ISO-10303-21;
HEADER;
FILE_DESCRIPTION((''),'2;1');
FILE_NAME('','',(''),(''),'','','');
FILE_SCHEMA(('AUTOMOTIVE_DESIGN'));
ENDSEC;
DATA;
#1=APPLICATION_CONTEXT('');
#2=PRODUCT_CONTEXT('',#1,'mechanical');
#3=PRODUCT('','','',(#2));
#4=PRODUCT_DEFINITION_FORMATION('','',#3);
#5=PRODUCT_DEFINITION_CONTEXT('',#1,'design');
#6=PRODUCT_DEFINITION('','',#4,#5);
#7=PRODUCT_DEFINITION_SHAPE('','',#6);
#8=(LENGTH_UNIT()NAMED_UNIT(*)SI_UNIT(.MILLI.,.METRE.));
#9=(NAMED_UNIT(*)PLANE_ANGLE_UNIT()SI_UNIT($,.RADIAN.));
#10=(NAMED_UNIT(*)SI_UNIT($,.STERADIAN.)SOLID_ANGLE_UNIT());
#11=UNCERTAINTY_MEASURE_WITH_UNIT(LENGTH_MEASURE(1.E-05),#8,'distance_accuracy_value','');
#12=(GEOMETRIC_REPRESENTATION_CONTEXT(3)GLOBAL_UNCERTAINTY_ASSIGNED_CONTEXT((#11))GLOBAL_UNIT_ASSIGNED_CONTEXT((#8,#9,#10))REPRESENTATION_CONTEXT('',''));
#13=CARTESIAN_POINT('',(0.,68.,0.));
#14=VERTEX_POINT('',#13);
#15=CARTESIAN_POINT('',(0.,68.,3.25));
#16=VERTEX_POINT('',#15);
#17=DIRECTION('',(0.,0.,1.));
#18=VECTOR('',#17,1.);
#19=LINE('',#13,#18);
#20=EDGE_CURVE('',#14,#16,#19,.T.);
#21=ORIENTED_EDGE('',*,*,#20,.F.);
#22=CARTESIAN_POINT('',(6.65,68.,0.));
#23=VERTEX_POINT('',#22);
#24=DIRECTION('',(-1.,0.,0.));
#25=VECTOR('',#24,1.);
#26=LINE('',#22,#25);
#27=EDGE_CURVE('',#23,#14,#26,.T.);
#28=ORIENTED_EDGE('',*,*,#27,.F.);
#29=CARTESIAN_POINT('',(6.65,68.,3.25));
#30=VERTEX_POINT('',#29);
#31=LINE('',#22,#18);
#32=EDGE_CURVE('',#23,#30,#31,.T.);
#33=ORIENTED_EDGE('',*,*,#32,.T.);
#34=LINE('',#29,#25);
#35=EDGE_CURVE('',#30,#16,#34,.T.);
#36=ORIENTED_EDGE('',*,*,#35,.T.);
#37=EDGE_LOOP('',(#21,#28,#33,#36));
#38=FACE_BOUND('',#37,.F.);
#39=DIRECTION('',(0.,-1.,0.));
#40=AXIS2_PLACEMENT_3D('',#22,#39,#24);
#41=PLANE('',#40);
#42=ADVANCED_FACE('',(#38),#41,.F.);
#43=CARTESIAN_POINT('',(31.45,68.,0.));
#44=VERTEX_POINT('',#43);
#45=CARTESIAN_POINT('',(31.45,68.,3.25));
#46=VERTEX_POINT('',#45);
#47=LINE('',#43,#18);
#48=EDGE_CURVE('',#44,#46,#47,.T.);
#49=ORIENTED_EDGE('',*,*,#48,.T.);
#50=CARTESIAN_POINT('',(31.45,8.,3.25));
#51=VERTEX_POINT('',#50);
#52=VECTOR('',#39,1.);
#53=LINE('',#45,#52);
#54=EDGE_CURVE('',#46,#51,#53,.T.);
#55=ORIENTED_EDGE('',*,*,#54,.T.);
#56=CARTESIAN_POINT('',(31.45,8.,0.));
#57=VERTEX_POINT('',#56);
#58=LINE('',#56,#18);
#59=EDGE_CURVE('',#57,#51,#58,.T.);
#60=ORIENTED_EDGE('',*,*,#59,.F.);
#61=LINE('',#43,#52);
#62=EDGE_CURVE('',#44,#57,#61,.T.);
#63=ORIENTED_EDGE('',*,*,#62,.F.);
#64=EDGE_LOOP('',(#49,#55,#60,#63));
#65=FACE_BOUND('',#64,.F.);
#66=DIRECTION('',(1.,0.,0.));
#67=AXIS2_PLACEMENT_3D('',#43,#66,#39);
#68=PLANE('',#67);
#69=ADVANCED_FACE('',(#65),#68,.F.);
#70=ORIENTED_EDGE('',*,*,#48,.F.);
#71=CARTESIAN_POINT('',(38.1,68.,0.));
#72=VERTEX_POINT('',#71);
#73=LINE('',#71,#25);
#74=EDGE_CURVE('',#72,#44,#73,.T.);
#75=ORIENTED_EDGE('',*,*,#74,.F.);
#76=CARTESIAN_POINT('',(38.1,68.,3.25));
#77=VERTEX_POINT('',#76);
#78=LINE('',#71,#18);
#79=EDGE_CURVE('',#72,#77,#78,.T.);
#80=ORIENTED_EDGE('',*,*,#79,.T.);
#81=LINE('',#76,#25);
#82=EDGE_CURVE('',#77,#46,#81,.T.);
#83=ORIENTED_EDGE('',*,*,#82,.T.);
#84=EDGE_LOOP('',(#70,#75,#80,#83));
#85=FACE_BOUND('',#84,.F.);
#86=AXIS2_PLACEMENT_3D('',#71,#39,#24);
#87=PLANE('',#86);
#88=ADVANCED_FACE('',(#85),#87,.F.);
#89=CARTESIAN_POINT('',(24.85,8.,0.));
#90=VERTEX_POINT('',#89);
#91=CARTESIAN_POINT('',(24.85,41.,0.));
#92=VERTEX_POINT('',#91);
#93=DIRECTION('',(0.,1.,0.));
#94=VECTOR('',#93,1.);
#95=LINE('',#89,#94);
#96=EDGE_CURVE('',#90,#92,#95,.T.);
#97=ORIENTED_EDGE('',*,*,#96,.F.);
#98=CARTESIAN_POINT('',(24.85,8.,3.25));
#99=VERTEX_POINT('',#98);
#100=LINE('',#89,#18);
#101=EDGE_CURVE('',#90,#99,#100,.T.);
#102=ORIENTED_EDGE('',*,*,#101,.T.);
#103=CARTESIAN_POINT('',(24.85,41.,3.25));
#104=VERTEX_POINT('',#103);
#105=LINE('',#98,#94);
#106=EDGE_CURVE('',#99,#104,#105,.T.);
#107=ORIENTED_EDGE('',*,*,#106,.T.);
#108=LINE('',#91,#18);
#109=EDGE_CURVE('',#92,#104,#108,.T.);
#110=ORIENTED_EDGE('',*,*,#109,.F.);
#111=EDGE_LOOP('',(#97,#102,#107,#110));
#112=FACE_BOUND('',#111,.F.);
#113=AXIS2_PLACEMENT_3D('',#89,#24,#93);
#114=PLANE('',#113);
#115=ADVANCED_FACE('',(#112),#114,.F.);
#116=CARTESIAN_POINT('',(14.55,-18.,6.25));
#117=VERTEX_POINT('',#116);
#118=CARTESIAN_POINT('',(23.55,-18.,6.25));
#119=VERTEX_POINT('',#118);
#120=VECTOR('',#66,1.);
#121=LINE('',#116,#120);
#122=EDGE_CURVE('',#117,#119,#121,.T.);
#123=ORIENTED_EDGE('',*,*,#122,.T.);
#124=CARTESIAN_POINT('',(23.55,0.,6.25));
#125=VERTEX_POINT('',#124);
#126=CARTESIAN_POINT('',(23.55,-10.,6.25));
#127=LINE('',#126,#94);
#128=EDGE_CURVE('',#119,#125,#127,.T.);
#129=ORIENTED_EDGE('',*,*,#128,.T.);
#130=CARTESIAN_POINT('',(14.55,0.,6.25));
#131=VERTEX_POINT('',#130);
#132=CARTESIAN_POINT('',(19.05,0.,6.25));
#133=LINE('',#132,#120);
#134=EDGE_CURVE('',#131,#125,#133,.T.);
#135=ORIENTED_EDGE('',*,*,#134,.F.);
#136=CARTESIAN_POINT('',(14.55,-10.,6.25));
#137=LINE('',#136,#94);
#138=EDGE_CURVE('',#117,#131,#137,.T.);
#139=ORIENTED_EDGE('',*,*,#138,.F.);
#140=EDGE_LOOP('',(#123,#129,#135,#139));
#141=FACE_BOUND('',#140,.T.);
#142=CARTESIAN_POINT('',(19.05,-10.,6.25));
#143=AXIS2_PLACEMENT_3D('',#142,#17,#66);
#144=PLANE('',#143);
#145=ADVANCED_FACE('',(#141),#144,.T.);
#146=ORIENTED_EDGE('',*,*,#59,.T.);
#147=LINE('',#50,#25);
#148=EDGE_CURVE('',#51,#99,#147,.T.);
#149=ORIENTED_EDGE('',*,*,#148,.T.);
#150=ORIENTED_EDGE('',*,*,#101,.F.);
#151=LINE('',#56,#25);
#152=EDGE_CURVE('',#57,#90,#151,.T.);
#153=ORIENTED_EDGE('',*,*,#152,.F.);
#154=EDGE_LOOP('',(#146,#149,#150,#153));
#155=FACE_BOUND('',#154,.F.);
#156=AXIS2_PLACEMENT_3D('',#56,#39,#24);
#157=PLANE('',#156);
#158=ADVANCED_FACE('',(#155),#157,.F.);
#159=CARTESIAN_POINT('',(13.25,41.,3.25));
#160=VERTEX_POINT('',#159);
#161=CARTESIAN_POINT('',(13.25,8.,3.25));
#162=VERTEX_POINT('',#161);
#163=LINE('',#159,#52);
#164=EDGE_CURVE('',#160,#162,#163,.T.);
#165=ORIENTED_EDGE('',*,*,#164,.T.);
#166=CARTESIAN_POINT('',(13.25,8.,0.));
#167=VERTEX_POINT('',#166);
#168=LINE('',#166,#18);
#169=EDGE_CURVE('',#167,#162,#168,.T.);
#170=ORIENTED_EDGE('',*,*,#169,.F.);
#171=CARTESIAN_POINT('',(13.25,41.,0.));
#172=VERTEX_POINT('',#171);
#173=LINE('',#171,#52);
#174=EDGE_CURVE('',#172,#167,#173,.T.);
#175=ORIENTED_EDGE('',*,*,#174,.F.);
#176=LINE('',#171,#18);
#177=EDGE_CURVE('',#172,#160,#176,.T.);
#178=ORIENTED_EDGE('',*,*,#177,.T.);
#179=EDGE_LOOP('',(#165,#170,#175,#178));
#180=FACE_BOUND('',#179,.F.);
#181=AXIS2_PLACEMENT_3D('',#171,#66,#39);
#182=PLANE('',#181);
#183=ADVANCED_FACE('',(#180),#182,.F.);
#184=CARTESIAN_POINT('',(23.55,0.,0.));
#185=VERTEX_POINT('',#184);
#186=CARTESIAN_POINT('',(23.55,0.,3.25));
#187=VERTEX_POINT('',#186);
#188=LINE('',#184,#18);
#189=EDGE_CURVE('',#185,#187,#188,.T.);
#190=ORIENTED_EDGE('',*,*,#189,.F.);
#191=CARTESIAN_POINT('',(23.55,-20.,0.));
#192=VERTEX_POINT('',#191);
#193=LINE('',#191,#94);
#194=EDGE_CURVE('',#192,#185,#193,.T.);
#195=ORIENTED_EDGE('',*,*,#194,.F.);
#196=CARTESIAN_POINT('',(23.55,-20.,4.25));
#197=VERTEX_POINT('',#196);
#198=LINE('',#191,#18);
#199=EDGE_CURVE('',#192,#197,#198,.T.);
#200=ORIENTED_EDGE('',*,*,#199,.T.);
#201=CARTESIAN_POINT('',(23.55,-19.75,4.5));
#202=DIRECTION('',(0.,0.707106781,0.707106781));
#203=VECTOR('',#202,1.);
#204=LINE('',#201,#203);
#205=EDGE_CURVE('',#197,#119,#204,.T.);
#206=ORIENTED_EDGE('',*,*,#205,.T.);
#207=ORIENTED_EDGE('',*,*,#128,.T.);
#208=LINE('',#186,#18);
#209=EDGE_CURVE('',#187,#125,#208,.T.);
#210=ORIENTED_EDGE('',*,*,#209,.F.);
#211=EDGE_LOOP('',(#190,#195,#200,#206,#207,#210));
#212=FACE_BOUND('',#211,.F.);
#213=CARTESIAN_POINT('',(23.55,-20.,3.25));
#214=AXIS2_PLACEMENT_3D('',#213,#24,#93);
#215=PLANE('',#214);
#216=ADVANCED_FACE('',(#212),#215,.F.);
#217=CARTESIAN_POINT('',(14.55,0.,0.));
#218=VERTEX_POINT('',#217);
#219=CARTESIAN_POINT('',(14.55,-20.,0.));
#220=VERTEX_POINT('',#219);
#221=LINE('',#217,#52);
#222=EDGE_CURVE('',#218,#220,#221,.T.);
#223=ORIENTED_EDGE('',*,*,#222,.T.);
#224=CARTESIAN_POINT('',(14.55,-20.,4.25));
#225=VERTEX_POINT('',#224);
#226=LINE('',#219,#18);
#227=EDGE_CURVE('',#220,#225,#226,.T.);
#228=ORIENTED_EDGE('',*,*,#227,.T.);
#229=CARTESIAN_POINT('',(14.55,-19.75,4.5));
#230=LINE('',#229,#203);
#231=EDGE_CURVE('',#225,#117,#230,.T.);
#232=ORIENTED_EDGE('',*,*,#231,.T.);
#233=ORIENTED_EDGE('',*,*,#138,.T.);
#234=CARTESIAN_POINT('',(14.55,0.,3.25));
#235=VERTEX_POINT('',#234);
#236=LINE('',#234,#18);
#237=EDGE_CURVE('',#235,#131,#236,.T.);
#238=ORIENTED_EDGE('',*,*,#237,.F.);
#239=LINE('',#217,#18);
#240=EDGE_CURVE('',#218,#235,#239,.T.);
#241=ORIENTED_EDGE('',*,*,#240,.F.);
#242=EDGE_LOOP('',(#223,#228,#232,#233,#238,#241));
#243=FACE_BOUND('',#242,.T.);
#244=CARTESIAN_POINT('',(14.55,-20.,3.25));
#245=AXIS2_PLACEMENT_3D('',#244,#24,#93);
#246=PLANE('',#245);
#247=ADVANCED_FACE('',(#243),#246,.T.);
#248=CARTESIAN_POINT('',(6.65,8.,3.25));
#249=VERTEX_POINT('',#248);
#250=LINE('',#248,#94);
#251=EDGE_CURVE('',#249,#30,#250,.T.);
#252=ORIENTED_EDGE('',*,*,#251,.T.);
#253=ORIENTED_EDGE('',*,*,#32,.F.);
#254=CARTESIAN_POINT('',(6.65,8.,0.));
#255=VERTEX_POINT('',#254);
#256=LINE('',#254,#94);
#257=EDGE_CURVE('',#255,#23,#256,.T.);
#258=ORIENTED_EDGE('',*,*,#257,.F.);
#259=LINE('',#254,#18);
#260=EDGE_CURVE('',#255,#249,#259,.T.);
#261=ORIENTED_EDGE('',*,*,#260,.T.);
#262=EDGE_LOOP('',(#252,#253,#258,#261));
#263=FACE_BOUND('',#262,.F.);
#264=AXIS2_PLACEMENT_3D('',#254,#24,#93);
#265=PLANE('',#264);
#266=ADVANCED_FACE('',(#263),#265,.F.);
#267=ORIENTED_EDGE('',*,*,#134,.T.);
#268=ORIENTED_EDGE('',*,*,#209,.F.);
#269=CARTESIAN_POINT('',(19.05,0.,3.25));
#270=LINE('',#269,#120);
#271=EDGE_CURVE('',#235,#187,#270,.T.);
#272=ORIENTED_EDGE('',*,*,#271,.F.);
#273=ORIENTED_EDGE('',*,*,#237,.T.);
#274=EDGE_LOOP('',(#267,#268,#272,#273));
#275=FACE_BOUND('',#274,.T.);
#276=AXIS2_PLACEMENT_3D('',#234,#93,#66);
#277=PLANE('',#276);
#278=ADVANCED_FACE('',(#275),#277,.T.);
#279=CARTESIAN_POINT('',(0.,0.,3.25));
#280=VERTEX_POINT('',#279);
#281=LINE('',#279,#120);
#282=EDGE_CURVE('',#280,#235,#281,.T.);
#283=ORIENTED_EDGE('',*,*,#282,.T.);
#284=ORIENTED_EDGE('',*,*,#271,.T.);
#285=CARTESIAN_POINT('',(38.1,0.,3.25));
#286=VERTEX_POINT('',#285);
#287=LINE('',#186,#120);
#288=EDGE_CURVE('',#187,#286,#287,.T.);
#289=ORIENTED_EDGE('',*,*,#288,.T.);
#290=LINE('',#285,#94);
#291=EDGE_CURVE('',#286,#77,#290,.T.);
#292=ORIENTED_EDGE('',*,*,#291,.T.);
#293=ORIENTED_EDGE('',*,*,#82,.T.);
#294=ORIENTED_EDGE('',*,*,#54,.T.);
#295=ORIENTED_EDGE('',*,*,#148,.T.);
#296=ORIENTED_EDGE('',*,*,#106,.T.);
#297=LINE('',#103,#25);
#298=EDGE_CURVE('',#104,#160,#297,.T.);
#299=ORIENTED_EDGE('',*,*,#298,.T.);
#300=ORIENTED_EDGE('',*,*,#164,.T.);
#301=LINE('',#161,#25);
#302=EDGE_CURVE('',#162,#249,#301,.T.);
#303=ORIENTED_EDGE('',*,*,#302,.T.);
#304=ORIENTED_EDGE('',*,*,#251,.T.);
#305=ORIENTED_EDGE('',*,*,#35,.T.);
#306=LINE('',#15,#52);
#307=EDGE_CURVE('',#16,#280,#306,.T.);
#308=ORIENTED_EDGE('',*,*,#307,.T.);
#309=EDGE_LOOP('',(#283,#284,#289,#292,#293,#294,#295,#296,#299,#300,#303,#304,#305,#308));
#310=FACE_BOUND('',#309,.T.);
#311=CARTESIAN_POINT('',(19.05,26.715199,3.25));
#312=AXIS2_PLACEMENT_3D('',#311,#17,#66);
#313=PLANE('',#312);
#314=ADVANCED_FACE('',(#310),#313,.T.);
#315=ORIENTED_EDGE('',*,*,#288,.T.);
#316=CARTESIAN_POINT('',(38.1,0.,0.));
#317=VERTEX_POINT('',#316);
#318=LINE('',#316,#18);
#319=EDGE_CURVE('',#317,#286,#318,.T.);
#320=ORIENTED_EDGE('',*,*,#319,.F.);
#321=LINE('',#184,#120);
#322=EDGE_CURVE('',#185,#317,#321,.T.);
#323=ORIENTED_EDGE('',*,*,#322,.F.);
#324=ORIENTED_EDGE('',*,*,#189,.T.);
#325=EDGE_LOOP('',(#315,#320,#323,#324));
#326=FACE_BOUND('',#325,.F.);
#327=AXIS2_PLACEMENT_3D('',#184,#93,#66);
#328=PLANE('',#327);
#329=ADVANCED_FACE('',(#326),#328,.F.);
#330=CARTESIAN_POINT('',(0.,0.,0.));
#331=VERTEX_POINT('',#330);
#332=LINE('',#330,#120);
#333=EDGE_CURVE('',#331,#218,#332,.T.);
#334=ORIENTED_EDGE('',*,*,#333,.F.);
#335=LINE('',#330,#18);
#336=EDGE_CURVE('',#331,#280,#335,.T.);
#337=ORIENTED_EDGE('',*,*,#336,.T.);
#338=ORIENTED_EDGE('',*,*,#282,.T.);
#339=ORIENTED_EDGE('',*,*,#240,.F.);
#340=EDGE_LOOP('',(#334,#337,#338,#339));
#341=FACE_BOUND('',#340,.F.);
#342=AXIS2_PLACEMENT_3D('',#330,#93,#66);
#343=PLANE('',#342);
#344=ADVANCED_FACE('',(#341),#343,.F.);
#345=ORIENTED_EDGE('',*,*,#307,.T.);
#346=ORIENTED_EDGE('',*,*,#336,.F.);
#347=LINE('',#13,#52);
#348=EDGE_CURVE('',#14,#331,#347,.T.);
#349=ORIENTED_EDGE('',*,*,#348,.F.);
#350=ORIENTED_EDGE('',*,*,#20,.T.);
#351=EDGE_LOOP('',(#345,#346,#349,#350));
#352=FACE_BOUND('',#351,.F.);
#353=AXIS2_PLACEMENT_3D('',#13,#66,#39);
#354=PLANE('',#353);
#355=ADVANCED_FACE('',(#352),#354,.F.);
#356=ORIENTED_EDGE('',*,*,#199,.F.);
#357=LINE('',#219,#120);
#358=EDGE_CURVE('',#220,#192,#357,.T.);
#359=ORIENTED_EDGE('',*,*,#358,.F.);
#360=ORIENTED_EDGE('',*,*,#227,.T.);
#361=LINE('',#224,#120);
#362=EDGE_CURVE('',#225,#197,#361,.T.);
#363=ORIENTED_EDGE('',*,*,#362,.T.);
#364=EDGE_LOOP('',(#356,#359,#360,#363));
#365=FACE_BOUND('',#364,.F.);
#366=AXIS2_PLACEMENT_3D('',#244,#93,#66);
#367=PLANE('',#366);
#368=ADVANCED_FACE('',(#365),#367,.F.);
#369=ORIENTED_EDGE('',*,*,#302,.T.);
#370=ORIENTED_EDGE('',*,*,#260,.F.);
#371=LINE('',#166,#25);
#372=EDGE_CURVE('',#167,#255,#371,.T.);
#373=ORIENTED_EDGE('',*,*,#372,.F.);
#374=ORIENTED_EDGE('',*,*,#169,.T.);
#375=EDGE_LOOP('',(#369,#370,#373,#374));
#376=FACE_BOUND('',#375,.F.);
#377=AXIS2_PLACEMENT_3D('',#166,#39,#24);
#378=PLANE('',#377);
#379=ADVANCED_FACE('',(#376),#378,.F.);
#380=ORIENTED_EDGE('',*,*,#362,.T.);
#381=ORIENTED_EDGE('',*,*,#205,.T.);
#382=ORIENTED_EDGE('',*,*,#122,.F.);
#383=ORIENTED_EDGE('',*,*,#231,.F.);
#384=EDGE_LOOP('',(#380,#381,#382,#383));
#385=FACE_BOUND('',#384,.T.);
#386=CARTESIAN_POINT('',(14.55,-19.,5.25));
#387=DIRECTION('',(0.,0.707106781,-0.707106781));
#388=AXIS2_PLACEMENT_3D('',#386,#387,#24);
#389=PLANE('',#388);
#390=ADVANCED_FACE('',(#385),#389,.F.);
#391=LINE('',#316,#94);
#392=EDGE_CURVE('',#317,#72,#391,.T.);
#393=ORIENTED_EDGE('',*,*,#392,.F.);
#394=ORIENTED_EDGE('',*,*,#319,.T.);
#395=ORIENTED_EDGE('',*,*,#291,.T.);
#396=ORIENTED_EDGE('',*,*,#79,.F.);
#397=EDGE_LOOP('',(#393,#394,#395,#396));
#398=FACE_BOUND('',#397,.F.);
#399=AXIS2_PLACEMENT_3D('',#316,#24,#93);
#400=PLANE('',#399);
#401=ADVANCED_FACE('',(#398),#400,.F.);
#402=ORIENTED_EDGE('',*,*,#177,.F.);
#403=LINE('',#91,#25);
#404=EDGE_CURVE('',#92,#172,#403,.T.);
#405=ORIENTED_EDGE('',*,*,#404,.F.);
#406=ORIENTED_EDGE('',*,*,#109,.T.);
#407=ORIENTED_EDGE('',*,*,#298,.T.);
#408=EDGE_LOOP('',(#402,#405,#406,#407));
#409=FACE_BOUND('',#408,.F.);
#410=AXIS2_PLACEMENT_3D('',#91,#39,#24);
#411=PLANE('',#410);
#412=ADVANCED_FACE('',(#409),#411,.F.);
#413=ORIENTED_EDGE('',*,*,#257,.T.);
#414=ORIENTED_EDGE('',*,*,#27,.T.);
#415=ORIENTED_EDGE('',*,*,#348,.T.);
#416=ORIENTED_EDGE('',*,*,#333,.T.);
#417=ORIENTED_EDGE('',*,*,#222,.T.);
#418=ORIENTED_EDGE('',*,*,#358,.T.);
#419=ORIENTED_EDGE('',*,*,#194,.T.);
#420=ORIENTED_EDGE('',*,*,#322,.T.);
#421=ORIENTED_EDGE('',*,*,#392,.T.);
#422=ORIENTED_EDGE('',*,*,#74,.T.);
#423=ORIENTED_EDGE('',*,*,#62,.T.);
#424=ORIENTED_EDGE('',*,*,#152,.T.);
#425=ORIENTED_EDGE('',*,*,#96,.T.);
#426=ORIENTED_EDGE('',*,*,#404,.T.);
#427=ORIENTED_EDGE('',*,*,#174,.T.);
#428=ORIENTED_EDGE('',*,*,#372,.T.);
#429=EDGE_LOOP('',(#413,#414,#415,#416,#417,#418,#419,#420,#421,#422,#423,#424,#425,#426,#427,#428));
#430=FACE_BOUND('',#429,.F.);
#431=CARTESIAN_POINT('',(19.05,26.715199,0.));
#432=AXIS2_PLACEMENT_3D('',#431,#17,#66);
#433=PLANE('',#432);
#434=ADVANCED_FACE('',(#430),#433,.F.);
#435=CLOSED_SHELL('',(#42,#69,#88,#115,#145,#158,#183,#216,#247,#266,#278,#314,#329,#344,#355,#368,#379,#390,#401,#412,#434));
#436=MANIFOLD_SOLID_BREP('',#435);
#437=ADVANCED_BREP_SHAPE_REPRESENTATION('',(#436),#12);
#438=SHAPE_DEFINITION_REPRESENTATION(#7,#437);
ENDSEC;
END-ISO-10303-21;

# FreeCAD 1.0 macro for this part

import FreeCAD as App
import Part
import Sketcher
Q = App.Units.Quantity


def edges_at(feature, points):
    """Names of the edges that pass closest to the given points."""
    edges = feature.Shape.Edges
    near = lambda p: min(range(len(edges)), key=lambda i: edges[i].distToShape(Part.Vertex(*p))[0])
    return sorted({f"Edge{near(p) + 1}" for p in points})


def add_polygon(sketch, points):
    """Adds a closed chain of lines whose ends are joined by coincident constraints."""
    first, n = sketch.GeometryCount, len(points)
    for a, b in zip(points, points[1:] + points[:1]):
        sketch.addGeometry(Part.LineSegment(App.Vector(*a, 0), App.Vector(*b, 0)), False)
    for i in range(n):
        sketch.addConstraint(Sketcher.Constraint("Coincident", first + i, 2, first + (i + 1) % n, 1))

doc = App.newDocument("Part")
params = doc.addObject("Spreadsheet::Sheet", "Params")
for row, (alias, value) in enumerate([
    ("sketch1_width", "9 mm"),
    ("sketch1_height", "68 mm"),
    ("sketch1_height2", "60 mm"),
    ("sketch1_height3", "33 mm"),
    ("sketch1_height4", "20 mm"),
    ("pad1_length", "3.25 mm"),
    ("sketch2_width", "9 mm"),
    ("sketch2_height", "20 mm"),
    ("pad2_length", "3 mm"),
    ("chamfer_size", "2 mm"),
], start=1):
    params.set(f"A{row}", alias)
    params.set(f"B{row}", "=" + value)
    params.setAlias(f"B{row}", alias)

body = doc.addObject("PartDesign::Body", "Body")

# Sketch on XY plane
sketch1 = body.newObject("Sketcher::SketchObject", "Sketch")
sketch1.AttachmentSupport = (doc.getObject("XY_Plane"), [""])
sketch1.MapMode = "FlatFace"
add_polygon(sketch1, [(38, 0), (38, 68), (31, 68), (31, 8), (25, 8), (25, 41), (13, 41), (13, 8), (7, 8), (7, 68), (0, 68), (0, 0), (15, 0), (15, -20), (24, -20), (24, 0)])  # lines 0-15
sketch1.addConstraint(Sketcher.Constraint("Vertical", 0))
sketch1.addConstraint(Sketcher.Constraint("Horizontal", 1))
sketch1.addConstraint(Sketcher.Constraint("Vertical", 2))
sketch1.addConstraint(Sketcher.Constraint("Horizontal", 3))
sketch1.addConstraint(Sketcher.Constraint("Vertical", 4))
sketch1.addConstraint(Sketcher.Constraint("Horizontal", 5))
sketch1.addConstraint(Sketcher.Constraint("Vertical", 6))
sketch1.addConstraint(Sketcher.Constraint("Horizontal", 7))
sketch1.addConstraint(Sketcher.Constraint("Vertical", 8))
sketch1.addConstraint(Sketcher.Constraint("Horizontal", 9))
sketch1.addConstraint(Sketcher.Constraint("Vertical", 10))
sketch1.addConstraint(Sketcher.Constraint("Horizontal", 11))
sketch1.addConstraint(Sketcher.Constraint("Vertical", 12))
sketch1.addConstraint(Sketcher.Constraint("Horizontal", 13))
sketch1.addConstraint(Sketcher.Constraint("Vertical", 14))
sketch1.addConstraint(Sketcher.Constraint("Horizontal", 15))
sketch1.addConstraint(Sketcher.Constraint("Coincident", 10, 2, -1, 1))
sketch1.addConstraint(Sketcher.Constraint("PointOnObject", 14, 2, -1))
sketch1.addConstraint(Sketcher.Constraint("Horizontal", 3, 2, 6, 2))
sketch1.addConstraint(Sketcher.Constraint("Horizontal", 1, 2, 8, 2))
sketch1.addConstraint(Sketcher.Constraint("Equal", 3, 7))
sketch1.addConstraint(Sketcher.Constraint("Equal", 1, 9))
sketch1.addConstraint(Sketcher.Constraint("Equal", 11, 15))
sketch1.addConstraint(Sketcher.Constraint("DistanceX", 13, 1, 13, 2, Q("9 mm")))
sketch1.addConstraint(Sketcher.Constraint("DistanceY", 0, 1, 0, 2, Q("68 mm")))
sketch1.addConstraint(Sketcher.Constraint("DistanceY", 2, 2, 2, 1, Q("60 mm")))
sketch1.addConstraint(Sketcher.Constraint("DistanceY", 4, 1, 4, 2, Q("33 mm")))
sketch1.addConstraint(Sketcher.Constraint("DistanceY", 12, 2, 12, 1, Q("20 mm")))
sketch1.addConstraint(Sketcher.Constraint("DistanceX", 3, 2, 3, 1, Q("6.6 mm")))
sketch1.addConstraint(Sketcher.Constraint("DistanceX", 5, 2, 5, 1, Q("11.6 mm")))
sketch1.addConstraint(Sketcher.Constraint("DistanceX", 1, 2, 1, 1, Q("6.65 mm")))
sketch1.setExpression("Constraints[39]", "Params.sketch1_width")
sketch1.setExpression("Constraints[40]", "Params.sketch1_height")
sketch1.setExpression("Constraints[41]", "Params.sketch1_height2")
sketch1.setExpression("Constraints[42]", "Params.sketch1_height3")
sketch1.setExpression("Constraints[43]", "Params.sketch1_height4")
pad1 = body.newObject("PartDesign::Pad", "Pad")
pad1.Profile = sketch1
pad1.setExpression("Length", "Params.pad1_length")

# Sketch on XY plane
sketch2 = body.newObject("Sketcher::SketchObject", "Sketch001")
sketch2.AttachmentSupport = (doc.getObject("XY_Plane"), [""])
sketch2.MapMode = "FlatFace"
sketch2.AttachmentOffset = App.Placement(App.Vector(0, 0, 3.25), App.Rotation())
add_polygon(sketch2, [(15, 0), (15, -20), (24, -20), (24, 0)])  # lines 0-3
sketch2.addConstraint(Sketcher.Constraint("Vertical", 0))
sketch2.addConstraint(Sketcher.Constraint("Horizontal", 1))
sketch2.addConstraint(Sketcher.Constraint("Vertical", 2))
sketch2.addConstraint(Sketcher.Constraint("Horizontal", 3))
sketch2.addConstraint(Sketcher.Constraint("PointOnObject", 2, 2, -1))
sketch2.addConstraint(Sketcher.Constraint("DistanceX", 1, 1, 1, 2, Q("9 mm")))
sketch2.addConstraint(Sketcher.Constraint("DistanceY", 0, 2, 0, 1, Q("20 mm")))
sketch2.addConstraint(Sketcher.Constraint("DistanceX", -1, 1, 0, 2, Q("14.55 mm")))
sketch2.setExpression("Constraints[9]", "Params.sketch2_width")
sketch2.setExpression("Constraints[10]", "Params.sketch2_height")
pad2 = body.newObject("PartDesign::Pad", "Pad001")
pad2.Profile = sketch2
pad2.setExpression("Length", "Params.pad2_length")
doc.recompute()

chamfer = body.newObject("PartDesign::Chamfer", "Chamfer")
chamfer.Base = (pad2, edges_at(pad2, [(19.05, -20, 6.25)]))
chamfer.setExpression("Size", "Params.chamfer_size")

doc.recompute()
